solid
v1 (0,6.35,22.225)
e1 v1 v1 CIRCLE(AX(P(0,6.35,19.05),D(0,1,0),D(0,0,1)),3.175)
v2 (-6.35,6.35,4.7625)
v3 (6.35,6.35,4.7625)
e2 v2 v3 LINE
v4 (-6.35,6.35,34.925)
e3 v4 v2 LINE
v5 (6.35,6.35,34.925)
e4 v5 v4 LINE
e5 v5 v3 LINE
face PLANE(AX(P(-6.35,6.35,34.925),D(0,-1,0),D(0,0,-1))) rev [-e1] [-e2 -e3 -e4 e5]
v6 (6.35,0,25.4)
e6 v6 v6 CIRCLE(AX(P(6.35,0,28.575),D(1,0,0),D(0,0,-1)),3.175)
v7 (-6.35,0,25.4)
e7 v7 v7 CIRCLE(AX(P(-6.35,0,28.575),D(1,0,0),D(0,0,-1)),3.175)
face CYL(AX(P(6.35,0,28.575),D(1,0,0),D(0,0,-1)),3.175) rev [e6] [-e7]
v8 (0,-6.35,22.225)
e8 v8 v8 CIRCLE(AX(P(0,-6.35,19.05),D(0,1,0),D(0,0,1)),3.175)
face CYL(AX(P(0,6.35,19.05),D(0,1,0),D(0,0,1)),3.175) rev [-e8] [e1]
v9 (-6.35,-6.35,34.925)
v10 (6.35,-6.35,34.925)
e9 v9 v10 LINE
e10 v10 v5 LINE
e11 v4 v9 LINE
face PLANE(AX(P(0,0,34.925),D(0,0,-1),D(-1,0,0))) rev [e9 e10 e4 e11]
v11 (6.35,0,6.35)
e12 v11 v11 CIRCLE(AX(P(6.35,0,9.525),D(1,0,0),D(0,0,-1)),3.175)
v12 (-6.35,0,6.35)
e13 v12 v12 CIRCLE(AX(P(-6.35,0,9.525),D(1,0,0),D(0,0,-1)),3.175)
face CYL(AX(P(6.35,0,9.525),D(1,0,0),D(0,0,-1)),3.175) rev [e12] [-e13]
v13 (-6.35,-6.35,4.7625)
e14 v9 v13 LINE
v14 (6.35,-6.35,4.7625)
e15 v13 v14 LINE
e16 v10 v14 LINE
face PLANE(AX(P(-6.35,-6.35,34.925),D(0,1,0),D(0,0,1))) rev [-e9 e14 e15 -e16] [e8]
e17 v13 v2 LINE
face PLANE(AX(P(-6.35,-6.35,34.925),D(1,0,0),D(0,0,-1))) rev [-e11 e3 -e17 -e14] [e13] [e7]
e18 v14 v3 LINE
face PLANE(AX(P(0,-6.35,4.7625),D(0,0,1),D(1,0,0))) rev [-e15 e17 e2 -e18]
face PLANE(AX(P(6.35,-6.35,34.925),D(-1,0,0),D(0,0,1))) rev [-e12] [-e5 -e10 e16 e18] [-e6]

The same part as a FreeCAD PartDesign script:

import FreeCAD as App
import Part
import Sketcher
from FreeCAD import Vector
Q = App.Units.Quantity

doc = App.newDocument("Part")
body = doc.addObject("PartDesign::Body", "Body")

# Sketch on XY plane
sketch1 = body.newObject("Sketcher::SketchObject", "Sketch")
sketch1.AttachmentSupport = (doc.getObject("XY_Plane"), [""])
sketch1.MapMode = "FlatFace"
sketch1.addGeometry([
    Part.LineSegment(Vector(-6.35, 6.35, 0), Vector(-6.35, -6.35, 0)),
    Part.LineSegment(Vector(-6.35, -6.35, 0), Vector(6.35, -6.35, 0)),
    Part.LineSegment(Vector(6.35, -6.35, 0), Vector(6.35, 6.35, 0)),
    Part.LineSegment(Vector(6.35, 6.35, 0), Vector(-6.35, 6.35, 0)),
], False)
sketch1.addConstraint([
    Sketcher.Constraint("Coincident", 0, 2, 1, 1),
    Sketcher.Constraint("Coincident", 1, 2, 2, 1),
    Sketcher.Constraint("Coincident", 2, 2, 3, 1),
    Sketcher.Constraint("Coincident", 3, 2, 0, 1),
    Sketcher.Constraint("Vertical", 0),
    Sketcher.Constraint("Horizontal", 1),
    Sketcher.Constraint("Vertical", 2),
    Sketcher.Constraint("Horizontal", 3),
    Sketcher.Constraint("Symmetric", 0, 2, 2, 2, -1, 1),
    Sketcher.Constraint("Equal", 3, 0),
    Sketcher.Constraint("DistanceX", 1, 1, 1, 2, Q("0.5 in")),
])
pad1 = body.newObject("PartDesign::Pad", "Pad")
pad1.Profile = sketch1
pad1.Length = Q("2.75 in")
pad1.Midplane = True

# Sketch on XZ plane
sketch2 = body.newObject("Sketcher::SketchObject", "Sketch001")
sketch2.AttachmentSupport = (doc.getObject("XZ_Plane"), [""])
sketch2.MapMode = "FlatFace"
sketch2.AttachmentOffset = App.Placement(Vector(0, 0, -0.25 * 25.4), App.Rotation())
sketch2.addGeometry([
    Part.Circle(Vector(0, 0, 0), Vector(0, 0, 1), 3.175),
    Part.Circle(Vector(0, -19.05, 0), Vector(0, 0, 1), 3.175),
    Part.Circle(Vector(0, 19.05, 0), Vector(0, 0, 1), 3.175),
], False)
sketch2.addConstraint([
    Sketcher.Constraint("Coincident", 0, 3, -1, 1),
    Sketcher.Constraint("Equal", 0, 1),
    Sketcher.Constraint("Equal", 1, 2),
    Sketcher.Constraint("Symmetric", 1, 3, 2, 3, -1, 1),
    Sketcher.Constraint("PointOnObject", 1, 3, -2),
    Sketcher.Constraint("Diameter", 0, Q("0.25 in")),
    Sketcher.Constraint("DistanceY", 1, 3, 2, 3, Q("1.5 in")),
])
doc.recompute()
hole = body.newObject("PartDesign::Hole", "Hole")
hole.Profile = sketch2
hole.ThreadType = "None"
hole.Diameter = Q("0.25 in")
hole.DepthType = "ThroughAll"
hole.Reversed = True

# Sketch on YZ plane
sketch3 = body.newObject("Sketcher::SketchObject", "Sketch002")
sketch3.AttachmentSupport = (doc.getObject("YZ_Plane"), [""])
sketch3.MapMode = "FlatFace"
sketch3.AttachmentOffset = App.Placement(Vector(0, 0, 0.25 * 25.4), App.Rotation())
sketch3.addGeometry([
    Part.Circle(Vector(0, -9.525, 0), Vector(0, 0, 1), 3.175),
    Part.Circle(Vector(0, -28.575, 0), Vector(0, 0, 1), 3.175),
    Part.Circle(Vector(0, 9.525, 0), Vector(0, 0, 1), 3.175),
    Part.Circle(Vector(0, 28.575, 0), Vector(0, 0, 1), 3.175),
], False)
sketch3.addConstraint([
    Sketcher.Constraint("Equal", 0, 1),
    Sketcher.Constraint("Equal", 1, 2),
    Sketcher.Constraint("Equal", 2, 3),
    Sketcher.Constraint("Symmetric", 0, 3, 2, 3, -1, 1),
    Sketcher.Constraint("Symmetric", 1, 3, 3, 3, -1, 1),
    Sketcher.Constraint("PointOnObject", 0, 3, -2),
    Sketcher.Constraint("PointOnObject", 1, 3, -2),
    Sketcher.Constraint("Diameter", 0, Q("0.25 in")),
    Sketcher.Constraint("DistanceY", 1, 3, 2, 3, Q("1.5 in")),
    Sketcher.Constraint("DistanceY", 1, 3, 0, 3, Q("0.75 in")),
])
doc.recompute()
hole2 = body.newObject("PartDesign::Hole", "Hole001")
hole2.Profile = sketch3
hole2.ThreadType = "None"
hole2.Diameter = Q("0.25 in")
hole2.DepthType = "ThroughAll"

# Sketch on XZ plane
sketch4 = body.newObject("Sketcher::SketchObject", "Sketch003")
sketch4.AttachmentSupport = (doc.getObject("XZ_Plane"), [""])
sketch4.MapMode = "FlatFace"
sketch4.AttachmentOffset = App.Placement(Vector(0, 0, -0.25 * 25.4), App.Rotation())
sketch4.addGeometry([
    Part.LineSegment(Vector(-6.35, -34.925, 0), Vector(-6.35, 4.7625, 0)),  # 0
    Part.LineSegment(Vector(-6.35, 4.7625, 0), Vector(6.35, 4.7625, 0)),  # 1
    Part.LineSegment(Vector(6.35, 4.7625, 0), Vector(6.35, -34.925, 0)),  # 2
    Part.LineSegment(Vector(6.35, -34.925, 0), Vector(-6.35, -34.925, 0)),  # 3
    Part.Circle(Vector(0, 0, 0), Vector(0, 0, 1), 3.175),  # 4
    Part.Circle(Vector(0, -19.05, 0), Vector(0, 0, 1), 3.175),  # 5
], False)
sketch4.addConstraint([
    Sketcher.Constraint("Coincident", 0, 2, 1, 1),
    Sketcher.Constraint("Coincident", 1, 2, 2, 1),
    Sketcher.Constraint("Coincident", 2, 2, 3, 1),
    Sketcher.Constraint("Coincident", 3, 2, 0, 1),
    Sketcher.Constraint("Vertical", 0),
    Sketcher.Constraint("Horizontal", 1),
    Sketcher.Constraint("Vertical", 2),
    Sketcher.Constraint("Horizontal", 3),
    Sketcher.Constraint("Coincident", 4, 3, -1, 1),
    Sketcher.Constraint("Equal", 4, 5),
    Sketcher.Constraint("PointOnObject", 5, 3, -2),
    Sketcher.Constraint("Diameter", 4, Q("0.25 in")),
    Sketcher.Constraint("DistanceX", 1, 1, 1, 2, Q("0.5 in")),
    Sketcher.Constraint("DistanceY", 0, 1, 0, 2, Q("1.5625 in")),
    Sketcher.Constraint("DistanceY", 5, 3, -1, 1, Q("0.75 in")),
    Sketcher.Constraint("DistanceX", 0, 2, -1, 1, Q("0.25 in")),
    Sketcher.Constraint("DistanceY", -1, 1, 0, 2, Q("0.1875 in")),
])
pocket1 = body.newObject("PartDesign::Pocket", "Pocket")
pocket1.Profile = sketch4
pocket1.Type = "ThroughAll"
pocket1.Reversed = True

doc.recompute()
